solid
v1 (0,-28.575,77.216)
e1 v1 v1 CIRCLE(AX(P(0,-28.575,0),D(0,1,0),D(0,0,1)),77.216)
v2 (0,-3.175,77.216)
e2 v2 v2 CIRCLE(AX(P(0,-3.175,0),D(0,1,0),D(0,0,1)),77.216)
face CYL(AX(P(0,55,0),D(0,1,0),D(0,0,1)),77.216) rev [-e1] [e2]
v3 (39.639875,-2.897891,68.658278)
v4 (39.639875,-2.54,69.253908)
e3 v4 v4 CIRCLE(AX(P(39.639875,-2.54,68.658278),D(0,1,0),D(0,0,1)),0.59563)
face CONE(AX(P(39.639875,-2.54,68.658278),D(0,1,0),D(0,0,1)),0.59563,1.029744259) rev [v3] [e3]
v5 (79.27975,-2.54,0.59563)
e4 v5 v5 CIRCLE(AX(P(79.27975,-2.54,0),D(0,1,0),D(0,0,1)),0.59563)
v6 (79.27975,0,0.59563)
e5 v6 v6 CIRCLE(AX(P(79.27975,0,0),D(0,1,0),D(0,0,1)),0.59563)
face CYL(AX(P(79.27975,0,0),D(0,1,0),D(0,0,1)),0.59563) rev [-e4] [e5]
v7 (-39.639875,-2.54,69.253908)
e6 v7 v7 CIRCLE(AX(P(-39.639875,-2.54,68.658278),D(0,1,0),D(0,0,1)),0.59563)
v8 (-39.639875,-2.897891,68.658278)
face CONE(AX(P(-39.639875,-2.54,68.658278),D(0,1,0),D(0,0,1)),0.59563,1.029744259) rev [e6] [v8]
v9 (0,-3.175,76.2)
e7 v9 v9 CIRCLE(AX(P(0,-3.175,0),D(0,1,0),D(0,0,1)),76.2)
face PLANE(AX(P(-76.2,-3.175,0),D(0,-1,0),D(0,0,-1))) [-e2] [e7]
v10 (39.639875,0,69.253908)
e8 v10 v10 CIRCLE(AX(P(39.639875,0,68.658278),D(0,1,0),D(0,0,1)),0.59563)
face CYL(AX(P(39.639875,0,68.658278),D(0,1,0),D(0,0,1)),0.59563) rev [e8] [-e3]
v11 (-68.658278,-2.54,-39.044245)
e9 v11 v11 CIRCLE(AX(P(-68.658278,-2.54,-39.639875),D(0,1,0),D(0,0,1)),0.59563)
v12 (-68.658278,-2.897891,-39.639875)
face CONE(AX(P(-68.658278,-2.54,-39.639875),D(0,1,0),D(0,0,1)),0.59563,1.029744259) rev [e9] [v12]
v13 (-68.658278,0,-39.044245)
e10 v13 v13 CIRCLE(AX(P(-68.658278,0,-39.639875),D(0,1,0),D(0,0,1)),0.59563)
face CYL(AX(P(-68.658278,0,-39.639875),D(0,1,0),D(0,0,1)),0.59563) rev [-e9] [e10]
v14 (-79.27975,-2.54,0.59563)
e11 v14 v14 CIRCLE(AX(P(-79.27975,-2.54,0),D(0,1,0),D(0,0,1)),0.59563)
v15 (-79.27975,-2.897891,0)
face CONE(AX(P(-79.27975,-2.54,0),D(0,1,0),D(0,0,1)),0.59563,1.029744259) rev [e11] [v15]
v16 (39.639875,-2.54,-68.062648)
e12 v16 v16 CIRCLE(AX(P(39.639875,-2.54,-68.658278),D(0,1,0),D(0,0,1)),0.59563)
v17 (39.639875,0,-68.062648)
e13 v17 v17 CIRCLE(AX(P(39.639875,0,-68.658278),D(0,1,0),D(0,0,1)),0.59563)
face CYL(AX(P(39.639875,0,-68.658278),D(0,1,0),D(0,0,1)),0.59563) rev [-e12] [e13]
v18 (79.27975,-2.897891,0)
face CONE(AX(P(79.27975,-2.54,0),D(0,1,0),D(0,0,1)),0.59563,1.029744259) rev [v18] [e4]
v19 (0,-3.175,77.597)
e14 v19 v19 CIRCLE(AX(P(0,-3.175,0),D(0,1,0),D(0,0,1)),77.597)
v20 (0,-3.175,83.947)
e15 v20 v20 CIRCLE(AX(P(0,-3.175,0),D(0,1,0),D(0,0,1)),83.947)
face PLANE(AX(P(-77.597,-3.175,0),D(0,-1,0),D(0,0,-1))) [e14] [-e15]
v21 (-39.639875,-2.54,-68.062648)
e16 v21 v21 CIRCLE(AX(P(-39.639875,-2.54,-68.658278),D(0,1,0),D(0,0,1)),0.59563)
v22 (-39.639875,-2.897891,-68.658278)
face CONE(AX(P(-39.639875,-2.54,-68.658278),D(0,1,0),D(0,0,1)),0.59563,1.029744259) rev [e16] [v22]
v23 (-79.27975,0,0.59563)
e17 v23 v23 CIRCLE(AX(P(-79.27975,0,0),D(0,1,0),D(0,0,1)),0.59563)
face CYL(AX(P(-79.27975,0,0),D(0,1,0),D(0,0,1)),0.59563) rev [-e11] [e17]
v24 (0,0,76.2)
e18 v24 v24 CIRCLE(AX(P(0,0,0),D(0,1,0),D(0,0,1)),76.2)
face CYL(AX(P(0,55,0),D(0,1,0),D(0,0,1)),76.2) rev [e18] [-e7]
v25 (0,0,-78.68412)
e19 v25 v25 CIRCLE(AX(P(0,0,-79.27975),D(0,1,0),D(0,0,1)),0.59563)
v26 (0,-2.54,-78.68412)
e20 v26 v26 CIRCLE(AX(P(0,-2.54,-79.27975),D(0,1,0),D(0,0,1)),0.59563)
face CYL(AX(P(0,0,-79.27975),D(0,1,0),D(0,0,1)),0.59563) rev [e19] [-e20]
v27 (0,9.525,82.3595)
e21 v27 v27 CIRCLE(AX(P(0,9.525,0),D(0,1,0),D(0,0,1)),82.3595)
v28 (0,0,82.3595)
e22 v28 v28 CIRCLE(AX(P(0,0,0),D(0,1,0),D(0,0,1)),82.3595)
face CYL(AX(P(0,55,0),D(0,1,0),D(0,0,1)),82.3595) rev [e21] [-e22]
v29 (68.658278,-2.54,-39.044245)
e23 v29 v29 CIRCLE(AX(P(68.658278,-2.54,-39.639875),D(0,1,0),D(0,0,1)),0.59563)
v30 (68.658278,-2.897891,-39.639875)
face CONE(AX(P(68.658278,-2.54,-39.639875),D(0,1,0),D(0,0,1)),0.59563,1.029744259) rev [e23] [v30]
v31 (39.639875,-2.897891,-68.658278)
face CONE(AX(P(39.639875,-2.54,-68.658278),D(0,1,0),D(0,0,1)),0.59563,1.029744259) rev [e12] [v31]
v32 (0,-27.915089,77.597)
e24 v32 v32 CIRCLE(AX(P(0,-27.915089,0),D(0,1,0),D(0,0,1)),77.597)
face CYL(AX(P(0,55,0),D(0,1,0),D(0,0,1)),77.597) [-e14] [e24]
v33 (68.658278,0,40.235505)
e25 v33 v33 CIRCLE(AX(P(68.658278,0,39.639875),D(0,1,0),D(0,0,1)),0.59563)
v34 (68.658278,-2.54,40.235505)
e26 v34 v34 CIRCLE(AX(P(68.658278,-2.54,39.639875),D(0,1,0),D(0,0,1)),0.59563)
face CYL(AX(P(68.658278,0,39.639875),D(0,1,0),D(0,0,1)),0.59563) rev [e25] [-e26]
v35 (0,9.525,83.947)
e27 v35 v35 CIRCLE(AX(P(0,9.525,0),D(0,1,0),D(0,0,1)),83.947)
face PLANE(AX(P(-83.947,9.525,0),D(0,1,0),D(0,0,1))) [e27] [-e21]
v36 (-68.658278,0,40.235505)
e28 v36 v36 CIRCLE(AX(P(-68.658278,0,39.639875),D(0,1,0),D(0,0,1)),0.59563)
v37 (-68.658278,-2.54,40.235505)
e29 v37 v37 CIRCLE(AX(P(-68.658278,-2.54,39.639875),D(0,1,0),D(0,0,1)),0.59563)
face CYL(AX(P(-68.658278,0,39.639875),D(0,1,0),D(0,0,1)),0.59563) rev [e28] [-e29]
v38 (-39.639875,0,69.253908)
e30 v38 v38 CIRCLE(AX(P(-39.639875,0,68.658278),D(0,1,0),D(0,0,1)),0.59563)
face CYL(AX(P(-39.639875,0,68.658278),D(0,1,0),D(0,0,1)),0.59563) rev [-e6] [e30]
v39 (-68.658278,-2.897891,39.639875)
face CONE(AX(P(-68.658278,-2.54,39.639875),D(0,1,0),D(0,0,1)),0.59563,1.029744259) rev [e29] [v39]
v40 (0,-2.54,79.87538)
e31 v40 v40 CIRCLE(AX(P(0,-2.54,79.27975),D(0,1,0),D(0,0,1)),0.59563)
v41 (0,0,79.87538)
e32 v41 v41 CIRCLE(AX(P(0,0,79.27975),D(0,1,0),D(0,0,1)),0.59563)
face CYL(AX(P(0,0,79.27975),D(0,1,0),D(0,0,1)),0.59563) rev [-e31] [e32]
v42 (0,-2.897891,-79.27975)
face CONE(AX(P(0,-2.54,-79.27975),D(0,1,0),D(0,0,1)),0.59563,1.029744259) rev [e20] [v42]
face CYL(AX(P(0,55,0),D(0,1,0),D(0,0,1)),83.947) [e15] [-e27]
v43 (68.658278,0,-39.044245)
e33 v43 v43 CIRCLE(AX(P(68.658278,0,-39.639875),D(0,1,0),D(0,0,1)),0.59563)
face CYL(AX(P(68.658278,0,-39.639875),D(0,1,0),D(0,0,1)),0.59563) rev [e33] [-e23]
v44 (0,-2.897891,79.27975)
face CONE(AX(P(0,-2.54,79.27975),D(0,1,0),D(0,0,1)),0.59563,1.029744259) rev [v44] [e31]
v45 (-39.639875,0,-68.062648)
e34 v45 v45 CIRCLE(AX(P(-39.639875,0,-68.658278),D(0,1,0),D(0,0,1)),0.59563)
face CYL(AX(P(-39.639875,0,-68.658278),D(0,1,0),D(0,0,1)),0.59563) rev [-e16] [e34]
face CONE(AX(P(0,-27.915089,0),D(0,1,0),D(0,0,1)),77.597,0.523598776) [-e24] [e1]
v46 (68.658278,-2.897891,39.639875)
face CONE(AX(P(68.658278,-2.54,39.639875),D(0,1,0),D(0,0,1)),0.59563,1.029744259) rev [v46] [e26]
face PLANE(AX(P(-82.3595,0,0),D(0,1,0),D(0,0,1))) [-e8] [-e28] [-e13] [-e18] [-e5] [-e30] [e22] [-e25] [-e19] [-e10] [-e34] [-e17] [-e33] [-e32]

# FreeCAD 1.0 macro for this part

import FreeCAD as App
import Part
import Sketcher

V = App.Vector
Q = App.Units.Quantity


def add_polygon(sketch, points):
    """Adds a closed chain of lines whose ends are joined by coincident constraints."""
    first, n = sketch.GeometryCount, len(points)
    for a, b in zip(points, points[1:] + points[:1]):
        sketch.addGeometry(Part.LineSegment(App.Vector(*a, 0), App.Vector(*b, 0)), False)
    for i in range(n):
        sketch.addConstraint(Sketcher.Constraint("Coincident", first + i, 2, first + (i + 1) % n, 1))

doc = App.newDocument("Part")
body = doc.addObject("PartDesign::Body", "Body")

# Sketch on XY plane
sketch1 = body.newObject("Sketcher::SketchObject", "Sketch")
sketch1.AttachmentSupport = (doc.getObject("XY_Plane"), [""])
sketch1.MapMode = "FlatFace"
add_polygon(sketch1, [(-76.2, -3.175), (-76.2, 0), (-82.3595, 0), (-82.3595, 9.525), (-83.947, 9.525), (-83.947, -3.175), (-77.597, -3.175), (-77.597, -27.915089), (-77.216, -28.575), (-77.216, -3.175)])  # lines 0-9
sketch1.addConstraint([
    Sketcher.Constraint("Vertical", 0),
    Sketcher.Constraint("Horizontal", 1),
    Sketcher.Constraint("Vertical", 2),
    Sketcher.Constraint("Horizontal", 3),
    Sketcher.Constraint("Vertical", 4),
    Sketcher.Constraint("Horizontal", 5),
    Sketcher.Constraint("Vertical", 6),
    Sketcher.Constraint("Vertical", 8),
    Sketcher.Constraint("Horizontal", 9),
    Sketcher.Constraint("PointOnObject", 0, 2, -1),
    Sketcher.Constraint("Horizontal", 5, 2, 8, 2),
    Sketcher.Constraint("DistanceY", 8, 1, 8, 2, Q("1 in")),
    Sketcher.Constraint("DistanceY", 4, 2, 4, 1, Q("0.5 in")),
    Sketcher.Constraint("DistanceX", 0, 2, -1, 1, Q("3 in")),
    Sketcher.Constraint("Angle", 7, Q("-60 deg")),
    Sketcher.Constraint("DistanceX", 5, 1, 5, 2, Q("0.25 in")),
    Sketcher.Constraint("DistanceX", 9, 1, 9, 2, Q("0.04 in")),
    Sketcher.Constraint("Distance", 7, Q("0.03 in")),
    Sketcher.Constraint("DistanceX", 3, 2, 3, 1, Q("0.0625 in")),
    Sketcher.Constraint("DistanceY", 0, 1, 0, 2, Q("0.125 in")),
])
revolution = body.newObject("PartDesign::Revolution", "Revolution")
revolution.Profile = sketch1
revolution.ReferenceAxis = (sketch1, ["V_Axis"])
revolution.Angle = 360

# Sketch on YZ plane
sketch2 = body.newObject("Sketcher::SketchObject", "Sketch001")
sketch2.AttachmentSupport = (doc.getObject("YZ_Plane"), [""])
sketch2.MapMode = "FlatFace"
sketch2.AttachmentOffset = App.Placement(V(0, 0, -79.27975), App.Rotation())
add_polygon(sketch2, [(-2.897891, 0), (0, 0), (0, 0.59563), (-2.54, 0.59563)])  # lines 0-3
sketch2.addConstraint([
    Sketcher.Constraint("Horizontal", 0),
    Sketcher.Constraint("Vertical", 1),
    Sketcher.Constraint("Horizontal", 2),
    Sketcher.Constraint("Coincident", 0, 2, -1, 1),
    Sketcher.Constraint("DistanceX", 2, 2, 2, 1, Q("0.1 in")),
    Sketcher.Constraint("Angle", 3, Q("-121 deg")),
    Sketcher.Constraint("DistanceX", 0, 1, 0, 2, Q("2.897891 mm")),
])
groove = body.newObject("PartDesign::Groove", "Groove")
groove.Profile = sketch2
groove.ReferenceAxis = (sketch2, ["H_Axis"])
groove.Angle = 360
doc.recompute()

polarpattern = body.newObject("PartDesign::PolarPattern", "PolarPattern")
polarpattern.Originals = [groove]
polarpattern.Axis = (doc.getObject("Y_Axis"), [""])
polarpattern.Angle = 360
polarpattern.Occurrences = 12
body.Tip = polarpattern

doc.recompute()
